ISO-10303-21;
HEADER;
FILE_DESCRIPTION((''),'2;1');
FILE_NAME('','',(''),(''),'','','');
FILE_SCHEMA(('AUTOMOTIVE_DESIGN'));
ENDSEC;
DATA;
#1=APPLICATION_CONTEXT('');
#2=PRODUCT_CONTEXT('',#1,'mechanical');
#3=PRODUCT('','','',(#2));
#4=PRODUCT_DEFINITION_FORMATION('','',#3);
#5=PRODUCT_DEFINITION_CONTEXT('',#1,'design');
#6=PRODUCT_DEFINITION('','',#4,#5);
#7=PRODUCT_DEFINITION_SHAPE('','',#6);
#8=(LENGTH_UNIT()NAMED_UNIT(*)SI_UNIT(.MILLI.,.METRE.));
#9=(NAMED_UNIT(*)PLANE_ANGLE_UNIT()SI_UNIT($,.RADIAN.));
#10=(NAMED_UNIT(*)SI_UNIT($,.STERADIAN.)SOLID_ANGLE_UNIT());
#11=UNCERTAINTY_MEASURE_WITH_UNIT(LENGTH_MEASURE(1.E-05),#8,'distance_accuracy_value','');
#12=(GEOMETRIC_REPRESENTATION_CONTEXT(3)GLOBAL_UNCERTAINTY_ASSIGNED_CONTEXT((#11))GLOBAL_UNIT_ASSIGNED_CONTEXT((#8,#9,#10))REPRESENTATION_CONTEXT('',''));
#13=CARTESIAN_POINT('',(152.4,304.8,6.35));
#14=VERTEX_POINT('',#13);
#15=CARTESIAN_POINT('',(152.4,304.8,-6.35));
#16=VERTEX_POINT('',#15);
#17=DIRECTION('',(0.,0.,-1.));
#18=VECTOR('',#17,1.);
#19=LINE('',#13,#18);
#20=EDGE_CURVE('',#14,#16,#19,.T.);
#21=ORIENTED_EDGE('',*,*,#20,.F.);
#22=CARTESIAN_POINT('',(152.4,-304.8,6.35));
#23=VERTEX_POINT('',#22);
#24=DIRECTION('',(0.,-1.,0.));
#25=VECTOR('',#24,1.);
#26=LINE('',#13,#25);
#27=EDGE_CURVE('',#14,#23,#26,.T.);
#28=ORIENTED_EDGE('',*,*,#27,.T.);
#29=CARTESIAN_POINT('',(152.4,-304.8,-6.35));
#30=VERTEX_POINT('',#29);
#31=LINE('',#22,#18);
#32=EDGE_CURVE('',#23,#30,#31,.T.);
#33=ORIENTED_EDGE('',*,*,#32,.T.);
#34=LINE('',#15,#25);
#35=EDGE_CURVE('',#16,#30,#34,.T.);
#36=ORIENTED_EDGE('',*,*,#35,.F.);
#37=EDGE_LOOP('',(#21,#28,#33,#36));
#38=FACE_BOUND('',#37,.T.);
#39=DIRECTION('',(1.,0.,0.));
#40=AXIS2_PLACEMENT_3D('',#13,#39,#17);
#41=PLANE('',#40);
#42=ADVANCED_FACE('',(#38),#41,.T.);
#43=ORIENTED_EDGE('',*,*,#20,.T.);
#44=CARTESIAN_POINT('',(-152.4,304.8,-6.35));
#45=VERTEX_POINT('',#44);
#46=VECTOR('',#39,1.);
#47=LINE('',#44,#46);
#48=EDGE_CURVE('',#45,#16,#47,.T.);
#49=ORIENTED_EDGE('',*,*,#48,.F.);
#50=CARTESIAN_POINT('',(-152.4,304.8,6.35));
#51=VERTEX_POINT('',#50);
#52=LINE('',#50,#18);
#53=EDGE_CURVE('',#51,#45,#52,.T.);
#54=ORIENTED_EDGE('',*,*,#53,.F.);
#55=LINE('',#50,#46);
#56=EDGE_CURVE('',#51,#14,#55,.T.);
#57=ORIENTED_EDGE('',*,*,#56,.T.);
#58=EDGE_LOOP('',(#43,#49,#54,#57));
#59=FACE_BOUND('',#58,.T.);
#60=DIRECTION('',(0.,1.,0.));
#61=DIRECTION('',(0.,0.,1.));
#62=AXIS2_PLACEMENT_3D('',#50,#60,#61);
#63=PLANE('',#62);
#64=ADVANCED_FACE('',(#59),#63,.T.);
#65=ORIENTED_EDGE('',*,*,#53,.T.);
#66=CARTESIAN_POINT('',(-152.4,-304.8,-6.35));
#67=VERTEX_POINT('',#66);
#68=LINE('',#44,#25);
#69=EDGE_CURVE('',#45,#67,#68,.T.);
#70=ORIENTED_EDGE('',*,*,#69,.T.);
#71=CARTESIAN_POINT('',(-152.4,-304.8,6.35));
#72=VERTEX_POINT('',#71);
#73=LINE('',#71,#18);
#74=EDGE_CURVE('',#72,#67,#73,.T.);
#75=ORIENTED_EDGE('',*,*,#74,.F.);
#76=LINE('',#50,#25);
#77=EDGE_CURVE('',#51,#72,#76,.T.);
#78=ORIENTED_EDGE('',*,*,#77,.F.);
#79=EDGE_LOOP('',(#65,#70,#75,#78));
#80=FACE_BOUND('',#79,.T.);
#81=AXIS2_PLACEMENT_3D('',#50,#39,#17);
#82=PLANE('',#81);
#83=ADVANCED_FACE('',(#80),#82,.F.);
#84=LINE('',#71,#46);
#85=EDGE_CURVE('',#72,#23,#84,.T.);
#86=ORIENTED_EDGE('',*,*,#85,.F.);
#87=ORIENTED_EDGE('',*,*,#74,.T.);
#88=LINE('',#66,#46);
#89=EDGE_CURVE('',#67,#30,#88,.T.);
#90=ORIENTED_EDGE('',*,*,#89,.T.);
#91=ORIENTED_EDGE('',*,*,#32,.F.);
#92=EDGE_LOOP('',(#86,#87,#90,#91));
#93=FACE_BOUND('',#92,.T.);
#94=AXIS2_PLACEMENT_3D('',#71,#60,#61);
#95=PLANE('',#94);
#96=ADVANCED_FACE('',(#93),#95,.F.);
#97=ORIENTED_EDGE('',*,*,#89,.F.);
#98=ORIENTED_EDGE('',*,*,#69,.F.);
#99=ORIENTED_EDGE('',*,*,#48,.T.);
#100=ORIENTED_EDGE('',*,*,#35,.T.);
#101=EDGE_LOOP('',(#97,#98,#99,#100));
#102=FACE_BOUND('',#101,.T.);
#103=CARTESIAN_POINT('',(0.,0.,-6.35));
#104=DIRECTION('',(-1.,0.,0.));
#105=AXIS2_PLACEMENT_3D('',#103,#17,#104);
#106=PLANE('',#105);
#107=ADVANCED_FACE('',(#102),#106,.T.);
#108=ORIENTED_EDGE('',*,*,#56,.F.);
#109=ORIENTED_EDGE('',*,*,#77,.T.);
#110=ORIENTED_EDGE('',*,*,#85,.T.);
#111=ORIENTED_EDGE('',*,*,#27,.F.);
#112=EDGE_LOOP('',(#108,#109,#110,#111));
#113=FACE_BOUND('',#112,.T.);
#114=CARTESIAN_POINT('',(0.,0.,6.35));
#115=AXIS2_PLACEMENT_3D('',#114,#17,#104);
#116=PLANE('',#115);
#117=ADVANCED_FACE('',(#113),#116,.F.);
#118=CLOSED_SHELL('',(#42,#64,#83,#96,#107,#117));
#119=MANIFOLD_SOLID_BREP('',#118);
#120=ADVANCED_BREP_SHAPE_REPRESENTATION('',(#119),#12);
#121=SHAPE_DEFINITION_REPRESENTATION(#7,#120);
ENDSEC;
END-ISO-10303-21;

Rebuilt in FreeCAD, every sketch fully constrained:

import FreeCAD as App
import Part
import Sketcher
from FreeCAD import Vector
Q = App.Units.Quantity

doc = App.newDocument("Part")
body = doc.addObject("PartDesign::Body", "Body")

# Sketch on XY plane
sketch1 = body.newObject("Sketcher::SketchObject", "Sketch")
sketch1.AttachmentSupport = (doc.getObject("XY_Plane"), [""])
sketch1.MapMode = "FlatFace"
sketch1.addGeometry([
    Part.LineSegment(Vector(-152, 305, 0), Vector(-152, -305, 0)),
    Part.LineSegment(Vector(-152, -305, 0), Vector(152, -305, 0)),
    Part.LineSegment(Vector(152, -305, 0), Vector(152, 305, 0)),
    Part.LineSegment(Vector(152, 305, 0), Vector(-152, 305, 0)),
], False)
sketch1.addConstraint([
    Sketcher.Constraint("Coincident", 0, 2, 1, 1),
    Sketcher.Constraint("Coincident", 1, 2, 2, 1),
    Sketcher.Constraint("Coincident", 2, 2, 3, 1),
    Sketcher.Constraint("Coincident", 3, 2, 0, 1),
    Sketcher.Constraint("Vertical", 0),
    Sketcher.Constraint("Horizontal", 1),
    Sketcher.Constraint("Vertical", 2),
    Sketcher.Constraint("Horizontal", 3),
    Sketcher.Constraint("Symmetric", 0, 2, 2, 2, -1, 1),
    Sketcher.Constraint("DistanceX", 1, 1, 1, 2, Q("12 in")),
    Sketcher.Constraint("DistanceY", 0, 2, 0, 1, Q("24 in")),
])
pad1 = body.newObject("PartDesign::Pad", "Pad")
pad1.Profile = sketch1
pad1.Length = Q("0.5 in")
pad1.Midplane = True

doc.recompute()
